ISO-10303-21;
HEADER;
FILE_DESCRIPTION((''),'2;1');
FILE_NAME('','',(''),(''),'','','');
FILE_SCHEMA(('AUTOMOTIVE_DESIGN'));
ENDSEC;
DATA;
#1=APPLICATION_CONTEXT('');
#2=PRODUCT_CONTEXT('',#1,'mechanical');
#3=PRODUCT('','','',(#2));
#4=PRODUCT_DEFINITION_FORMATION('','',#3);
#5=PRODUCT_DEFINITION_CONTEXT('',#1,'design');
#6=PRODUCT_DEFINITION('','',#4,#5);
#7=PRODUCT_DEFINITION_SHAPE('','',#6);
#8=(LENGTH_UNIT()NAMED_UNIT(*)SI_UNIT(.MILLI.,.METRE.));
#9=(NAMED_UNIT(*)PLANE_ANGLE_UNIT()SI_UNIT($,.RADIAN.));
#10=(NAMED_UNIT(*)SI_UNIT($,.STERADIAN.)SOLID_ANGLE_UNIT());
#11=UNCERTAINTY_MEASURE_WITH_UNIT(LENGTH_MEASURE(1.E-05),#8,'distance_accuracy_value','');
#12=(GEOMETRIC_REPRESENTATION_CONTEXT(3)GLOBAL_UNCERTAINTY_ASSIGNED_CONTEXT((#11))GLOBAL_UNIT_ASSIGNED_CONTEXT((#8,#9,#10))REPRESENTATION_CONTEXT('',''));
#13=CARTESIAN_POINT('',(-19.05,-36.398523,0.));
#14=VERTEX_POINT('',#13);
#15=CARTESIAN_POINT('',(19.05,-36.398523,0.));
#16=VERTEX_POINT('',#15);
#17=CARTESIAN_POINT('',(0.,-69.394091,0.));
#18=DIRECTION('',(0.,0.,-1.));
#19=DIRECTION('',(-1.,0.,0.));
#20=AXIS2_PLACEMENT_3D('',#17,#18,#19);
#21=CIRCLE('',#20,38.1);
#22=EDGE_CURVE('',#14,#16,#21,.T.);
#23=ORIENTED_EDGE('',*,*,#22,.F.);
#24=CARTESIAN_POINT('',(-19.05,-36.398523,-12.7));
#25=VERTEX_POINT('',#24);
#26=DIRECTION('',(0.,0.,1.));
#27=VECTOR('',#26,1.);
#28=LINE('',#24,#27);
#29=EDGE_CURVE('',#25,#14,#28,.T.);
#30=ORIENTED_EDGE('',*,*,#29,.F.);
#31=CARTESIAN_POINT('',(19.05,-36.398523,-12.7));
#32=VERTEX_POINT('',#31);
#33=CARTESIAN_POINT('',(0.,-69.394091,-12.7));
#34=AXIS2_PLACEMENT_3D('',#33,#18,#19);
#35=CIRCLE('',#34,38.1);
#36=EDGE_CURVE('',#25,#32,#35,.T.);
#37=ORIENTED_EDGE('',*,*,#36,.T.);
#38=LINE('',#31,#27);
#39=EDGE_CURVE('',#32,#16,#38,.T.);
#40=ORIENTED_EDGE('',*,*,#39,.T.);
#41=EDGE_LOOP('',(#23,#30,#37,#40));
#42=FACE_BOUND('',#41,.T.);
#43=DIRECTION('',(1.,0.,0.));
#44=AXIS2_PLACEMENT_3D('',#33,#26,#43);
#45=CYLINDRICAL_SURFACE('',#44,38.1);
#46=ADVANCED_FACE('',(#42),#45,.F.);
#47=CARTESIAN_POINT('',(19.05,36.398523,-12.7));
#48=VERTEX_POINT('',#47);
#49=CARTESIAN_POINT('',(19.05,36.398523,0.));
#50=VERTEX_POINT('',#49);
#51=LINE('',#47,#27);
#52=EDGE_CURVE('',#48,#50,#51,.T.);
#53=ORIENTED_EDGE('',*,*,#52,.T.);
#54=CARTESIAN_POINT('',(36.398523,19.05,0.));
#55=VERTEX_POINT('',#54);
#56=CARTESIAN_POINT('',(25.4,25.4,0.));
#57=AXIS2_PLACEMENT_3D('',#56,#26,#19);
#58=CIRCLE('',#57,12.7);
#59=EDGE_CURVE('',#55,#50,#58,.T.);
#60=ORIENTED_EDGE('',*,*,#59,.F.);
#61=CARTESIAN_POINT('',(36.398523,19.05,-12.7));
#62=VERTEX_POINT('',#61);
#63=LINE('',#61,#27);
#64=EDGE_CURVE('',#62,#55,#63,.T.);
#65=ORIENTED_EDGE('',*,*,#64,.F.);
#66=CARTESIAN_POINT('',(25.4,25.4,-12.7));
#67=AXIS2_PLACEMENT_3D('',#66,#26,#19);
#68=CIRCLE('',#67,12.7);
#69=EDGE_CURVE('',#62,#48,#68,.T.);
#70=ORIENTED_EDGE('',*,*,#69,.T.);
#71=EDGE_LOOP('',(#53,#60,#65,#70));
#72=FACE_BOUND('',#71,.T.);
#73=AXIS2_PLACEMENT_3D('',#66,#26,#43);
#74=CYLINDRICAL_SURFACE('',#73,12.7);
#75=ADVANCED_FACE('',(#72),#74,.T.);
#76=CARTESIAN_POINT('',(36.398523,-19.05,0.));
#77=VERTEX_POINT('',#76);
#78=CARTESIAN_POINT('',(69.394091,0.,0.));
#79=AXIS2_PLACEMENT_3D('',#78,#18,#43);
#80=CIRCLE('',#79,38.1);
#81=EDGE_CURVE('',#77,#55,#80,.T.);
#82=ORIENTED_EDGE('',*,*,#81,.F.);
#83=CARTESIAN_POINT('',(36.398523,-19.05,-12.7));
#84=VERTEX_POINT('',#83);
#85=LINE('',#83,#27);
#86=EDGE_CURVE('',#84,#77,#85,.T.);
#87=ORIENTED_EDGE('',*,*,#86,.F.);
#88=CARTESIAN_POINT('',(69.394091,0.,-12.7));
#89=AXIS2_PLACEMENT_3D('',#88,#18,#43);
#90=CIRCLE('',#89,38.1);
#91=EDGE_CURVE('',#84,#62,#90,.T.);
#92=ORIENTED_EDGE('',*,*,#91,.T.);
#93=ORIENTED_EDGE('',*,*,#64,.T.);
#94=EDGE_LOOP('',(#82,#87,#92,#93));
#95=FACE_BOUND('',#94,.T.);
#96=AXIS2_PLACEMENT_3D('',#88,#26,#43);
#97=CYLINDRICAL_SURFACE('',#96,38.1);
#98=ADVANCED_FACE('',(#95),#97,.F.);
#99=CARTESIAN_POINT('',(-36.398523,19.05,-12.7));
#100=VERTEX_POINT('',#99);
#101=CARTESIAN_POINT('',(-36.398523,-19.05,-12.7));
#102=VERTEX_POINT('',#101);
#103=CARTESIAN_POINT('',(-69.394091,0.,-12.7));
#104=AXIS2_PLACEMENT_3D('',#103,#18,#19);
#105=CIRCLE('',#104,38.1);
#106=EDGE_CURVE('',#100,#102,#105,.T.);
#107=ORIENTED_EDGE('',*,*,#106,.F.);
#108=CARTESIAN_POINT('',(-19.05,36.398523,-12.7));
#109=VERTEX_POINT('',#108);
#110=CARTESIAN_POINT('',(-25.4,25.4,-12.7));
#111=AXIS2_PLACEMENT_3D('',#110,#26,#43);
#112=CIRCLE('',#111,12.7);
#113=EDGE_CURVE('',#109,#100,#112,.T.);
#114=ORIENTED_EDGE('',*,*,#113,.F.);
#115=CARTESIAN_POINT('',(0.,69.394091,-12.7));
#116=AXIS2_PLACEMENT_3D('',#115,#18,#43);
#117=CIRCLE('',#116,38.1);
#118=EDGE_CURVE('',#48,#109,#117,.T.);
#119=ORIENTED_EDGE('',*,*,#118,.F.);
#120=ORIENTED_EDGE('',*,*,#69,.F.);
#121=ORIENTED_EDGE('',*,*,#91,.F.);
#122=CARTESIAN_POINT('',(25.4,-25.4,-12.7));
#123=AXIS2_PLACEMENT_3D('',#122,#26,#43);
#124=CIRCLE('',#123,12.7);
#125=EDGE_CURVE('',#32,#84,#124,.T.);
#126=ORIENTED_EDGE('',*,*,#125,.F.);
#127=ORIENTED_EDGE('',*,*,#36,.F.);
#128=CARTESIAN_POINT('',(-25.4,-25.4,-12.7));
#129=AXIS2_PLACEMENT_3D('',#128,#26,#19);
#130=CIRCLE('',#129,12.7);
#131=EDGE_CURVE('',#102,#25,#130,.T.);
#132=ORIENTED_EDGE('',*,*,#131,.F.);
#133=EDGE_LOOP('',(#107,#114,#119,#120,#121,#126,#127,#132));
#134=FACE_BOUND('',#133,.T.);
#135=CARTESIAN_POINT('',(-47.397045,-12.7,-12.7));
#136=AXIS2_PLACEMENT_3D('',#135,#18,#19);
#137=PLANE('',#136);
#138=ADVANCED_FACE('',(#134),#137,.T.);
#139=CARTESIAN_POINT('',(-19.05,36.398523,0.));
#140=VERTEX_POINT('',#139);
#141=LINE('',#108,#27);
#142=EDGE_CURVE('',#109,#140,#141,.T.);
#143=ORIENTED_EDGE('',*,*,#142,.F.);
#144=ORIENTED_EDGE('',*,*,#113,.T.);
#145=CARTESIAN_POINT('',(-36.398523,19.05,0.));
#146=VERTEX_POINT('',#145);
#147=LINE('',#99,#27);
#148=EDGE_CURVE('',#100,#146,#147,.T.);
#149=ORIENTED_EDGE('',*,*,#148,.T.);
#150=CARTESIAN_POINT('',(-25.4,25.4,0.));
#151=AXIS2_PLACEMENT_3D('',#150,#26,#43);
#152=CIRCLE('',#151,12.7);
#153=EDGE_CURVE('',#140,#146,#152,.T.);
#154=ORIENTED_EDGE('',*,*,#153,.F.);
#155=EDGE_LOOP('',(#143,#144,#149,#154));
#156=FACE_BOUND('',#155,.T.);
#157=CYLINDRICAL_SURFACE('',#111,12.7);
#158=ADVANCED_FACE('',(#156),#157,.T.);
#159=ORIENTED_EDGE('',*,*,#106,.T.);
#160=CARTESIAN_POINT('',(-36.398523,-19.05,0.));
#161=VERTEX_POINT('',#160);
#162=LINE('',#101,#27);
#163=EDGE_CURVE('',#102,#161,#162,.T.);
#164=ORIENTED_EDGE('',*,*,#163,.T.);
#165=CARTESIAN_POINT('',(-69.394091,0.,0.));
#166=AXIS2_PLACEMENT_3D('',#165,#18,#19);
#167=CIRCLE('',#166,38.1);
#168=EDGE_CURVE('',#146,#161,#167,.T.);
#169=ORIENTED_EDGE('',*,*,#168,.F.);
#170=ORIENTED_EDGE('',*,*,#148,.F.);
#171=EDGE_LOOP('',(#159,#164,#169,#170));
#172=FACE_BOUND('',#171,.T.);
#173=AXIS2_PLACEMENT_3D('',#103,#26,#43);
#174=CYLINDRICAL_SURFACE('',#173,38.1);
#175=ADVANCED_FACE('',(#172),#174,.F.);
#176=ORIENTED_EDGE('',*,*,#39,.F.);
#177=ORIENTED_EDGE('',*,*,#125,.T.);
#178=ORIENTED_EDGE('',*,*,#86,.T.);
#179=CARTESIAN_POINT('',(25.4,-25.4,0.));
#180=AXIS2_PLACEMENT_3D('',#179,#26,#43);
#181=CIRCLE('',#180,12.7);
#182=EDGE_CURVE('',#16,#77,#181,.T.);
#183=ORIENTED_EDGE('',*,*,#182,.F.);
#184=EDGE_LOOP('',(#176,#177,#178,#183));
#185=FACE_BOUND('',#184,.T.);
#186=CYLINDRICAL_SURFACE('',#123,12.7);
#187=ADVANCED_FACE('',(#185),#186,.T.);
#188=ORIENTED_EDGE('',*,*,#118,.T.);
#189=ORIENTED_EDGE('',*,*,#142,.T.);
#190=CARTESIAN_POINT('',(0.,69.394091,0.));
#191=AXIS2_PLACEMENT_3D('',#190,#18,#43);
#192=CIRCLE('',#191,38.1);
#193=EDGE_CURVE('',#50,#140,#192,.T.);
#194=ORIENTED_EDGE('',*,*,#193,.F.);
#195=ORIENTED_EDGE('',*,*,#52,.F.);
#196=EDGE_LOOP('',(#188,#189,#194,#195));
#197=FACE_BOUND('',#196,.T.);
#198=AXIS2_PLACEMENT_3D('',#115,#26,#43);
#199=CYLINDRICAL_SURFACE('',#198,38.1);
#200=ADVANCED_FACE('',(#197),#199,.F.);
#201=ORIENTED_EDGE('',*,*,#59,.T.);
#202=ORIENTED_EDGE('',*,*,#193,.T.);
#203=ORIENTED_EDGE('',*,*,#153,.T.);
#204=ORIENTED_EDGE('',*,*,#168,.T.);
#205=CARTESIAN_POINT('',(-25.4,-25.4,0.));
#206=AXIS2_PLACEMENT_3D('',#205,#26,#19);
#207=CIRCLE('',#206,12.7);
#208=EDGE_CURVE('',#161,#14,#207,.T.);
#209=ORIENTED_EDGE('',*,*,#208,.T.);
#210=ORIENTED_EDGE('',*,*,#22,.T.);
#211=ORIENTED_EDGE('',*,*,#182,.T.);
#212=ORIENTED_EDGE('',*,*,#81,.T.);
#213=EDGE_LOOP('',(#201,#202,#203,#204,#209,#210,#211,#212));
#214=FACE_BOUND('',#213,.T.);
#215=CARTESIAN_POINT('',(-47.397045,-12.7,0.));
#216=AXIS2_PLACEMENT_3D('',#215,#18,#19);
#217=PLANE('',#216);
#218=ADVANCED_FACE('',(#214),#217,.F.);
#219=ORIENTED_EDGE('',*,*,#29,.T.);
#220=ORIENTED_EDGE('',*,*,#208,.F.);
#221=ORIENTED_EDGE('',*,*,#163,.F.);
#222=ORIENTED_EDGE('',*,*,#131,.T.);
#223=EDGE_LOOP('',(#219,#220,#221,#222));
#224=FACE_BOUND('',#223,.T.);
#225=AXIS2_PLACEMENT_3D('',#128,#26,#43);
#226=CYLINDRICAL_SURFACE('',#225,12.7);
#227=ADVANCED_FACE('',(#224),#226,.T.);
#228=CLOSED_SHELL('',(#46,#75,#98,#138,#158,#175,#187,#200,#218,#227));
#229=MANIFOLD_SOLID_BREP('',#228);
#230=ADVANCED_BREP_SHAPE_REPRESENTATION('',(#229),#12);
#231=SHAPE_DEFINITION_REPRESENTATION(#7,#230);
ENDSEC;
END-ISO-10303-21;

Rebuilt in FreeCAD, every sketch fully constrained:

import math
import FreeCAD as App
import Part
import Sketcher

V = App.Vector
Q = App.Units.Quantity

doc = App.newDocument("Part")
body = doc.addObject("PartDesign::Body", "Body")

# Sketch on XY plane
sketch1 = body.newObject("Sketcher::SketchObject", "Sketch")
sketch1.AttachmentSupport = (doc.getObject("XY_Plane"), [""])
sketch1.MapMode = "FlatFace"
sketch1.addGeometry([
    Part.ArcOfCircle(Part.Circle(V(-25, 25, 0), V(0, 0, 1), 13), math.radians(60), math.radians(210)),  # 0
    Part.ArcOfCircle(Part.Circle(V(-69, 0, 0), V(0, 0, 1), 38), math.radians(-30), math.radians(30)),  # 1
    Part.ArcOfCircle(Part.Circle(V(-25, -25, 0), V(0, 0, 1), 13), math.radians(150), math.radians(300)),  # 2
    Part.ArcOfCircle(Part.Circle(V(0, -69, 0), V(0, 0, 1), 38), math.radians(60), math.radians(120)),  # 3
    Part.ArcOfCircle(Part.Circle(V(25, -25, 0), V(0, 0, 1), 13), math.radians(-120), math.radians(30)),  # 4
    Part.ArcOfCircle(Part.Circle(V(69, 0, 0), V(0, 0, 1), 38), math.radians(150), math.radians(210)),  # 5
    Part.ArcOfCircle(Part.Circle(V(25, 25, 0), V(0, 0, 1), 13), math.radians(-30), math.radians(120)),  # 6
    Part.ArcOfCircle(Part.Circle(V(0, 69, 0), V(0, 0, 1), 38), math.radians(-120), math.radians(-60)),  # 7
], False)
sketch1.addConstraint([
    Sketcher.Constraint("Tangent", 0, 2, 1, 2),
    Sketcher.Constraint("Tangent", 1, 1, 2, 1),
    Sketcher.Constraint("Tangent", 2, 2, 3, 2),
    Sketcher.Constraint("Tangent", 3, 1, 4, 1),
    Sketcher.Constraint("Tangent", 4, 2, 5, 2),
    Sketcher.Constraint("Tangent", 5, 1, 6, 1),
    Sketcher.Constraint("Tangent", 6, 2, 7, 2),
    Sketcher.Constraint("Tangent", 7, 1, 0, 1),
    Sketcher.Constraint("Equal", 0, 2),
    Sketcher.Constraint("Equal", 1, 3),
    Sketcher.Constraint("Equal", 2, 4),
    Sketcher.Constraint("Equal", 3, 5),
    Sketcher.Constraint("Equal", 4, 6),
    Sketcher.Constraint("Equal", 5, 7),
    Sketcher.Constraint("Symmetric", 0, 3, 4, 3, -1, 1),
    Sketcher.Constraint("Symmetric", 2, 3, 6, 3, -1, 1),
    Sketcher.Constraint("Symmetric", 2, 3, 4, 3, -2),
    Sketcher.Constraint("Radius", 0, Q("0.5 in")),
    Sketcher.Constraint("Radius", 1, Q("1.5 in")),
    Sketcher.Constraint("DistanceX", 0, 3, -1, 1, Q("1 in")),
    Sketcher.Constraint("DistanceY", -1, 1, 0, 3, Q("1 in")),
])
pad1 = body.newObject("PartDesign::Pad", "Pad")
pad1.Profile = sketch1
pad1.Length = Q("0.5 in")
pad1.Reversed = True

doc.recompute()
